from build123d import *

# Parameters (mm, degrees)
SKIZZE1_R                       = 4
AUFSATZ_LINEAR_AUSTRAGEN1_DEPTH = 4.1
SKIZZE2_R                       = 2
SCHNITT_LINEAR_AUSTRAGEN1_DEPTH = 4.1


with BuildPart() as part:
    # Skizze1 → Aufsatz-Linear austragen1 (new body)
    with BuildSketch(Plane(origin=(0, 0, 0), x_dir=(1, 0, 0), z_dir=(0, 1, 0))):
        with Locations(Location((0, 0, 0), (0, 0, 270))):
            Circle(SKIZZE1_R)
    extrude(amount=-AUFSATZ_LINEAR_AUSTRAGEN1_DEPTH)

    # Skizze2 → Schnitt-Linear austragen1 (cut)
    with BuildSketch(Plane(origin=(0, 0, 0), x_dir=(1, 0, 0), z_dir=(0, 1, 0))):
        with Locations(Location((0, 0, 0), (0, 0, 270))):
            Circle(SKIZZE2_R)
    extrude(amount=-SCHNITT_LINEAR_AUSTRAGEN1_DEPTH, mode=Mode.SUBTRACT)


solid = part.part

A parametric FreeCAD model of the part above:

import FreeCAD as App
import Part
import Sketcher
from FreeCAD import Vector
Q = App.Units.Quantity

doc = App.newDocument("Part")
body = doc.addObject("PartDesign::Body", "Body")

# Sketch on XZ plane
sketch1 = body.newObject("Sketcher::SketchObject", "Sketch")
sketch1.AttachmentSupport = (doc.getObject("XZ_Plane"), [""])
sketch1.MapMode = "FlatFace"
sketch1.addGeometry(Part.Circle(Vector(0, 0, 0), Vector(0, 0, 1), 4), False)
sketch1.addConstraint(Sketcher.Constraint("Coincident", 0, 3, -1, 1))
sketch1.addConstraint(Sketcher.Constraint("Diameter", 0, Q("8 mm")))
pad1 = body.newObject("PartDesign::Pad", "Pad")
pad1.Profile = sketch1
pad1.Length = 4.1

# Sketch on XZ plane
sketch2 = body.newObject("Sketcher::SketchObject", "Sketch001")
sketch2.AttachmentSupport = (doc.getObject("XZ_Plane"), [""])
sketch2.MapMode = "FlatFace"
sketch2.addGeometry(Part.Circle(Vector(0, 0, 0), Vector(0, 0, 1), 2), False)
sketch2.addConstraint(Sketcher.Constraint("Coincident", 0, 3, -1, 1))
sketch2.addConstraint(Sketcher.Constraint("Diameter", 0, Q("4 mm")))
pocket1 = body.newObject("PartDesign::Pocket", "Pocket")
pocket1.Profile = sketch2
pocket1.Length = 4.1
pocket1.Reversed = True

doc.recompute()
